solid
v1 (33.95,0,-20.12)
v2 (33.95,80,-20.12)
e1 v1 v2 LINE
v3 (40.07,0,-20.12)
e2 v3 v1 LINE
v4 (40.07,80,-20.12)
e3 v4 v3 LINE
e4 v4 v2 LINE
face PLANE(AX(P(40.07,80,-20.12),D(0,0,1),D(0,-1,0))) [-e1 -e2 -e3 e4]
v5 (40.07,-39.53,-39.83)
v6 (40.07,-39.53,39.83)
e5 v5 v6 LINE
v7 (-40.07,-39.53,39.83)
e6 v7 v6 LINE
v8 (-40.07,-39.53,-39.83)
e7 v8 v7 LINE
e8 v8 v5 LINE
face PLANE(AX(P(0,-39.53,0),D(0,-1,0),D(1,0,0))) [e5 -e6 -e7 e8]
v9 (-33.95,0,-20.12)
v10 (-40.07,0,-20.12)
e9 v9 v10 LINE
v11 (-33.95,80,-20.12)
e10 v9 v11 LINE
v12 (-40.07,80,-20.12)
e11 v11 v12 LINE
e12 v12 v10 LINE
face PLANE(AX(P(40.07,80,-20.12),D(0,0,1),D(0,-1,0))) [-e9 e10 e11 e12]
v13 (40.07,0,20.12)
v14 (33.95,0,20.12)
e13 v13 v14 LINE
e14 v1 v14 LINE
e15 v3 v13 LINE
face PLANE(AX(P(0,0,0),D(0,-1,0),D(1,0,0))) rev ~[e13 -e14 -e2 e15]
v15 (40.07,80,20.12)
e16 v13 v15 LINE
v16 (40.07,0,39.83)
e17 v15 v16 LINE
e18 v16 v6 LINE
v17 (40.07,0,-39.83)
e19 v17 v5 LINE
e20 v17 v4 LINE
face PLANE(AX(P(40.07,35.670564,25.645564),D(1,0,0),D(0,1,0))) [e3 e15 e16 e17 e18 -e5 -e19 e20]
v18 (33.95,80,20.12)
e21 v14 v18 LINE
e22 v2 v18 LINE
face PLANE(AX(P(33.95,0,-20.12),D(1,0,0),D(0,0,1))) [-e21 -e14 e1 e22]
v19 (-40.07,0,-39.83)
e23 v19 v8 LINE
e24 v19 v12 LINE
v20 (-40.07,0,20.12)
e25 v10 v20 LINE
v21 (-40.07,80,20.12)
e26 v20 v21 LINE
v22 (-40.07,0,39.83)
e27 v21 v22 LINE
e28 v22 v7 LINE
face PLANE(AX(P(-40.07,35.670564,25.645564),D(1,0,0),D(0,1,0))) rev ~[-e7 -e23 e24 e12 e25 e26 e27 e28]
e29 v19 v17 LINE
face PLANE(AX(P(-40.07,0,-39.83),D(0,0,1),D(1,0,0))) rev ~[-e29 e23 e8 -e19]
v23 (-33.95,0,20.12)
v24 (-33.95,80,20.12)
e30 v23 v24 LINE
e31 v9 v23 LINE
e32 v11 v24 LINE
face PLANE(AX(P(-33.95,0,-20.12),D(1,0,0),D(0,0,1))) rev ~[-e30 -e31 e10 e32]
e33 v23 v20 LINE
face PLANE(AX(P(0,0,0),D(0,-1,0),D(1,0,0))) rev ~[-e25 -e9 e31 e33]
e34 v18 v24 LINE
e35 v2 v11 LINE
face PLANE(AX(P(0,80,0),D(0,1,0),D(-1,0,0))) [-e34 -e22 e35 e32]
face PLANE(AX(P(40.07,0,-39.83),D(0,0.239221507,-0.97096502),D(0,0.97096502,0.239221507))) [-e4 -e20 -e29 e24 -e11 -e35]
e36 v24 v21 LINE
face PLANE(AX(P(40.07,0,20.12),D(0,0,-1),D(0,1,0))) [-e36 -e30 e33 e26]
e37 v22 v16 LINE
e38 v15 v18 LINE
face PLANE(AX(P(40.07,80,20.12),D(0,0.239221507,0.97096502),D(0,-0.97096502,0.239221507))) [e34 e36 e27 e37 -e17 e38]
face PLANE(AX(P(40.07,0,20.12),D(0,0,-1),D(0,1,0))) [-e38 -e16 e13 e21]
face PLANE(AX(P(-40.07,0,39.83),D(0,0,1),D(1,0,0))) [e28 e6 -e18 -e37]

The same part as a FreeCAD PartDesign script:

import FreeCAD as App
import Part
import Sketcher

V = App.Vector
Q = App.Units.Quantity

doc = App.newDocument("Part")
body = doc.addObject("PartDesign::Body", "Body")

# Sketch on XZ plane
sketch1 = body.newObject("Sketcher::SketchObject", "Sketch")
sketch1.AttachmentSupport = (doc.getObject("XZ_Plane"), [""])
sketch1.MapMode = "FlatFace"
sketch1.addGeometry(Part.LineSegment(V(-40, 40, 0), V(-40, -40, 0)), False)
sketch1.addGeometry(Part.LineSegment(V(-40, -40, 0), V(40, -40, 0)), False)
sketch1.addGeometry(Part.LineSegment(V(40, -40, 0), V(40, 40, 0)), False)
sketch1.addGeometry(Part.LineSegment(V(40, 40, 0), V(-40, 40, 0)), False)
sketch1.addConstraint(Sketcher.Constraint("Coincident", 0, 2, 1, 1))
sketch1.addConstraint(Sketcher.Constraint("Coincident", 1, 2, 2, 1))
sketch1.addConstraint(Sketcher.Constraint("Coincident", 2, 2, 3, 1))
sketch1.addConstraint(Sketcher.Constraint("Coincident", 3, 2, 0, 1))
sketch1.addConstraint(Sketcher.Constraint("Vertical", 0))
sketch1.addConstraint(Sketcher.Constraint("Horizontal", 1))
sketch1.addConstraint(Sketcher.Constraint("Vertical", 2))
sketch1.addConstraint(Sketcher.Constraint("Horizontal", 3))
sketch1.addConstraint(Sketcher.Constraint("Symmetric", 0, 2, 2, 2, -1, 1))
sketch1.addConstraint(Sketcher.Constraint("DistanceX", 1, 1, 1, 2, Q("80.14 mm")))
sketch1.addConstraint(Sketcher.Constraint("DistanceY", 0, 2, 0, 1, Q("79.66 mm")))
pad1 = body.newObject("PartDesign::Pad", "Pad")
pad1.Profile = sketch1
pad1.Length = 39.53

# Sketch on XZ plane
sketch2 = body.newObject("Sketcher::SketchObject", "Sketch001")
sketch2.AttachmentSupport = (doc.getObject("XZ_Plane"), [""])
sketch2.MapMode = "FlatFace"
sketch2.addGeometry(Part.LineSegment(V(34, 20, 0), V(34, -20, 0)), False)
sketch2.addGeometry(Part.LineSegment(V(34, -20, 0), V(-34, -20, 0)), False)
sketch2.addGeometry(Part.LineSegment(V(-34, -20, 0), V(-34, 20, 0)), False)
sketch2.addGeometry(Part.LineSegment(V(-34, 20, 0), V(34, 20, 0)), False)
sketch2.addConstraint(Sketcher.Constraint("Coincident", 0, 2, 1, 1))
sketch2.addConstraint(Sketcher.Constraint("Coincident", 1, 2, 2, 1))
sketch2.addConstraint(Sketcher.Constraint("Coincident", 2, 2, 3, 1))
sketch2.addConstraint(Sketcher.Constraint("Coincident", 3, 2, 0, 1))
sketch2.addConstraint(Sketcher.Constraint("Vertical", 0))
sketch2.addConstraint(Sketcher.Constraint("Horizontal", 1))
sketch2.addConstraint(Sketcher.Constraint("Vertical", 2))
sketch2.addConstraint(Sketcher.Constraint("Horizontal", 3))
sketch2.addConstraint(Sketcher.Constraint("Symmetric", 0, 2, 2, 2, -1, 1))
sketch2.addConstraint(Sketcher.Constraint("DistanceX", 1, 2, 1, 1, Q("67.9 mm")))
sketch2.addConstraint(Sketcher.Constraint("DistanceY", 0, 2, 0, 1, Q("40.24 mm")))
pad2 = body.newObject("PartDesign::Pad", "Pad001")
pad2.Profile = sketch2
pad2.Length = 80
pad2.Reversed = True

# Sketch on YZ plane
sketch3 = body.newObject("Sketcher::SketchObject", "Sketch002")
sketch3.AttachmentSupport = (doc.getObject("YZ_Plane"), [""])
sketch3.MapMode = "FlatFace"
sketch3.AttachmentOffset = App.Placement(V(0, 0, 40.07), App.Rotation())
sketch3.addGeometry(Part.LineSegment(V(80, 20, 0), V(0, 40, 0)), False)
sketch3.addGeometry(Part.LineSegment(V(0, 40, 0), V(-40, 40, 0)), False)
sketch3.addGeometry(Part.LineSegment(V(-40, 40, 0), V(-40, -40, 0)), False)
sketch3.addGeometry(Part.LineSegment(V(-40, -40, 0), V(0, -40, 0)), False)
sketch3.addGeometry(Part.LineSegment(V(0, -40, 0), V(80, -20, 0)), False)
sketch3.addGeometry(Part.LineSegment(V(80, -20, 0), V(0, -20, 0)), False)
sketch3.addGeometry(Part.LineSegment(V(0, -20, 0), V(0, 20, 0)), False)
sketch3.addGeometry(Part.LineSegment(V(0, 20, 0), V(80, 20, 0)), False)
sketch3.addConstraint(Sketcher.Constraint("Coincident", 0, 2, 1, 1))
sketch3.addConstraint(Sketcher.Constraint("Coincident", 1, 2, 2, 1))
sketch3.addConstraint(Sketcher.Constraint("Coincident", 2, 2, 3, 1))
sketch3.addConstraint(Sketcher.Constraint("Coincident", 3, 2, 4, 1))
sketch3.addConstraint(Sketcher.Constraint("Coincident", 4, 2, 5, 1))
sketch3.addConstraint(Sketcher.Constraint("Coincident", 5, 2, 6, 1))
sketch3.addConstraint(Sketcher.Constraint("Coincident", 6, 2, 7, 1))
sketch3.addConstraint(Sketcher.Constraint("Coincident", 7, 2, 0, 1))
sketch3.addConstraint(Sketcher.Constraint("Horizontal", 1))
sketch3.addConstraint(Sketcher.Constraint("Vertical", 2))
sketch3.addConstraint(Sketcher.Constraint("Horizontal", 3))
sketch3.addConstraint(Sketcher.Constraint("Horizontal", 5))
sketch3.addConstraint(Sketcher.Constraint("Vertical", 6))
sketch3.addConstraint(Sketcher.Constraint("Horizontal", 7))
sketch3.addConstraint(Sketcher.Constraint("Symmetric", 0, 2, 3, 2, -1, 1))
sketch3.addConstraint(Sketcher.Constraint("Symmetric", 5, 2, 6, 2, -1, 1))
sketch3.addConstraint(Sketcher.Constraint("PointOnObject", 0, 2, -2))
sketch3.addConstraint(Sketcher.Constraint("Vertical", 4, 2, 7, 2))
sketch3.addConstraint(Sketcher.Constraint("DistanceX", 5, 2, 5, 1, Q("80 mm")))
sketch3.addConstraint(Sketcher.Constraint("DistanceX", 1, 2, 1, 1, Q("39.53 mm")))
sketch3.addConstraint(Sketcher.Constraint("DistanceY", 2, 2, 2, 1, Q("79.66 mm")))
sketch3.addConstraint(Sketcher.Constraint("DistanceY", 6, 1, 6, 2, Q("40.24 mm")))
pad3 = body.newObject("PartDesign::Pad", "Pad002")
pad3.Profile = sketch3
pad3.Type = "UpToLast"
pad3.Reversed = True

doc.recompute()
